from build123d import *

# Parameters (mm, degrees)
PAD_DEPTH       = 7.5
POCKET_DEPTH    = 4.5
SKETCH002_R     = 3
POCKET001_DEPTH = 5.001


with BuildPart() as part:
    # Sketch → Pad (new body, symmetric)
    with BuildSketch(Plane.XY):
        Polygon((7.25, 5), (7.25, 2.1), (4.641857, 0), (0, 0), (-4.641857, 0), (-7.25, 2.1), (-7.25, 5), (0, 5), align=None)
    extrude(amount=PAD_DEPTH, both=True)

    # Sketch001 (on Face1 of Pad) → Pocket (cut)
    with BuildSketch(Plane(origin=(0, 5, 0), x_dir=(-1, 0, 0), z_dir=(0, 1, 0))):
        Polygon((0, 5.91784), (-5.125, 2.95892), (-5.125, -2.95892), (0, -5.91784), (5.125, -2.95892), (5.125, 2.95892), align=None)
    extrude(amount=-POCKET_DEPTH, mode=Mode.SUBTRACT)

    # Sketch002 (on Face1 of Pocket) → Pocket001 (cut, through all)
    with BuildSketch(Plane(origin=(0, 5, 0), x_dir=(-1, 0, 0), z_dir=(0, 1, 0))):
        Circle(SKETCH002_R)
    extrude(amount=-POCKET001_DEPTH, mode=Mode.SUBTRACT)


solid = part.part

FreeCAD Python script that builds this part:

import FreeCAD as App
import Part
import Sketcher
Q = App.Units.Quantity


def add_polygon(sketch, points):
    """Adds a closed chain of lines whose ends are joined by coincident constraints."""
    first, n = sketch.GeometryCount, len(points)
    for a, b in zip(points, points[1:] + points[:1]):
        sketch.addGeometry(Part.LineSegment(App.Vector(*a, 0), App.Vector(*b, 0)), False)
    for i in range(n):
        sketch.addConstraint(Sketcher.Constraint("Coincident", first + i, 2, first + (i + 1) % n, 1))

doc = App.newDocument("Part")
body = doc.addObject("PartDesign::Body", "Body")

# Sketch on XY plane
sketch1 = doc.addObject("Sketcher::SketchObject", "Sketch")
body.addObject(sketch1)
sketch1.AttachmentSupport = (doc.XY_Plane, [""])
sketch1.MapMode = "FlatFace"
add_polygon(sketch1, [(7.2, 2.1), (7.2, 5), (-7.2, 5), (-7.2, 2.1), (-4.6, 0), (4.6, 0)])  # lines 0-5
sketch1.addConstraint(Sketcher.Constraint("Vertical", 0))
sketch1.addConstraint(Sketcher.Constraint("Horizontal", 1))
sketch1.addConstraint(Sketcher.Constraint("Vertical", 2))
sketch1.addConstraint(Sketcher.Constraint("Horizontal", 4))
sketch1.addConstraint(Sketcher.Constraint("Symmetric", 3, 2, 4, 2, -1, 1))
sketch1.addConstraint(Sketcher.Constraint("Symmetric", 2, 2, 5, 2, -2))
sketch1.addConstraint(Sketcher.Constraint("DistanceX", 1, 2, 1, 1, Q("14.5 mm")))
sketch1.addConstraint(Sketcher.Constraint("DistanceY", 0, 1, 0, 2, Q("2.9 mm")))
sketch1.addConstraint(Sketcher.Constraint("DistanceY", -1, 1, 0, 2, Q("5 mm")))
sketch1.addConstraint(Sketcher.Constraint("Angle", 3, Q("-38.839995 deg")))
pad1 = doc.addObject("PartDesign::Pad", "Pad")
body.addObject(pad1)
pad1.Profile = sketch1
pad1.Length = 15
pad1.Midplane = True

# Sketch on XZ plane
sketch2 = doc.addObject("Sketcher::SketchObject", "Sketch001")
body.addObject(sketch2)
sketch2.AttachmentSupport = (doc.XZ_Plane, [""])
sketch2.MapMode = "FlatFace"
sketch2.AttachmentOffset = App.Placement(App.Vector(0, 0, -5), App.Rotation())
add_polygon(sketch2, [(0, 6), (5, 3), (5, -3), (0, -6), (-5, -3), (-5, 3)])  # lines 0-5
sketch2.addConstraint(Sketcher.Constraint("Vertical", 1))
sketch2.addConstraint(Sketcher.Constraint("Vertical", 4))
sketch2.addConstraint(Sketcher.Constraint("Symmetric", 0, 2, 3, 2, -1, 1))
sketch2.addConstraint(Sketcher.Constraint("Symmetric", 2, 2, 5, 2, -1, 1))
sketch2.addConstraint(Sketcher.Constraint("PointOnObject", 2, 2, -2))
sketch2.addConstraint(Sketcher.Constraint("Parallel", 2, 5))
sketch2.addConstraint(Sketcher.Constraint("Horizontal", 1, 2, 3, 2))
sketch2.addConstraint(Sketcher.Constraint("Angle", 0, Q("-29.999999 deg")))
sketch2.addConstraint(Sketcher.Constraint("DistanceX", 3, 2, 1, 2, Q("10.25 mm")))
sketch2.addConstraint(Sketcher.Constraint("DistanceY", 1, 2, 1, 1, Q("5.91784 mm")))
pocket1 = doc.addObject("PartDesign::Pocket", "Pocket")
body.addObject(pocket1)
pocket1.Profile = sketch2
pocket1.Length = 4.5
pocket1.Reversed = True

# Sketch on XZ plane
sketch3 = doc.addObject("Sketcher::SketchObject", "Sketch002")
body.addObject(sketch3)
sketch3.AttachmentSupport = (doc.XZ_Plane, [""])
sketch3.MapMode = "FlatFace"
sketch3.AttachmentOffset = App.Placement(App.Vector(0, 0, -5), App.Rotation())
sketch3.addGeometry(Part.Circle(App.Vector(0, 0, 0), App.Vector(0, 0, 1), 3), False)
sketch3.addConstraint(Sketcher.Constraint("Coincident", 0, 3, -1, 1))
sketch3.addConstraint(Sketcher.Constraint("Diameter", 0, Q("6 mm")))
pocket2 = doc.addObject("PartDesign::Pocket", "Pocket001")
body.addObject(pocket2)
pocket2.Profile = sketch3
pocket2.Type = "ThroughAll"
pocket2.Reversed = True

doc.recompute()
